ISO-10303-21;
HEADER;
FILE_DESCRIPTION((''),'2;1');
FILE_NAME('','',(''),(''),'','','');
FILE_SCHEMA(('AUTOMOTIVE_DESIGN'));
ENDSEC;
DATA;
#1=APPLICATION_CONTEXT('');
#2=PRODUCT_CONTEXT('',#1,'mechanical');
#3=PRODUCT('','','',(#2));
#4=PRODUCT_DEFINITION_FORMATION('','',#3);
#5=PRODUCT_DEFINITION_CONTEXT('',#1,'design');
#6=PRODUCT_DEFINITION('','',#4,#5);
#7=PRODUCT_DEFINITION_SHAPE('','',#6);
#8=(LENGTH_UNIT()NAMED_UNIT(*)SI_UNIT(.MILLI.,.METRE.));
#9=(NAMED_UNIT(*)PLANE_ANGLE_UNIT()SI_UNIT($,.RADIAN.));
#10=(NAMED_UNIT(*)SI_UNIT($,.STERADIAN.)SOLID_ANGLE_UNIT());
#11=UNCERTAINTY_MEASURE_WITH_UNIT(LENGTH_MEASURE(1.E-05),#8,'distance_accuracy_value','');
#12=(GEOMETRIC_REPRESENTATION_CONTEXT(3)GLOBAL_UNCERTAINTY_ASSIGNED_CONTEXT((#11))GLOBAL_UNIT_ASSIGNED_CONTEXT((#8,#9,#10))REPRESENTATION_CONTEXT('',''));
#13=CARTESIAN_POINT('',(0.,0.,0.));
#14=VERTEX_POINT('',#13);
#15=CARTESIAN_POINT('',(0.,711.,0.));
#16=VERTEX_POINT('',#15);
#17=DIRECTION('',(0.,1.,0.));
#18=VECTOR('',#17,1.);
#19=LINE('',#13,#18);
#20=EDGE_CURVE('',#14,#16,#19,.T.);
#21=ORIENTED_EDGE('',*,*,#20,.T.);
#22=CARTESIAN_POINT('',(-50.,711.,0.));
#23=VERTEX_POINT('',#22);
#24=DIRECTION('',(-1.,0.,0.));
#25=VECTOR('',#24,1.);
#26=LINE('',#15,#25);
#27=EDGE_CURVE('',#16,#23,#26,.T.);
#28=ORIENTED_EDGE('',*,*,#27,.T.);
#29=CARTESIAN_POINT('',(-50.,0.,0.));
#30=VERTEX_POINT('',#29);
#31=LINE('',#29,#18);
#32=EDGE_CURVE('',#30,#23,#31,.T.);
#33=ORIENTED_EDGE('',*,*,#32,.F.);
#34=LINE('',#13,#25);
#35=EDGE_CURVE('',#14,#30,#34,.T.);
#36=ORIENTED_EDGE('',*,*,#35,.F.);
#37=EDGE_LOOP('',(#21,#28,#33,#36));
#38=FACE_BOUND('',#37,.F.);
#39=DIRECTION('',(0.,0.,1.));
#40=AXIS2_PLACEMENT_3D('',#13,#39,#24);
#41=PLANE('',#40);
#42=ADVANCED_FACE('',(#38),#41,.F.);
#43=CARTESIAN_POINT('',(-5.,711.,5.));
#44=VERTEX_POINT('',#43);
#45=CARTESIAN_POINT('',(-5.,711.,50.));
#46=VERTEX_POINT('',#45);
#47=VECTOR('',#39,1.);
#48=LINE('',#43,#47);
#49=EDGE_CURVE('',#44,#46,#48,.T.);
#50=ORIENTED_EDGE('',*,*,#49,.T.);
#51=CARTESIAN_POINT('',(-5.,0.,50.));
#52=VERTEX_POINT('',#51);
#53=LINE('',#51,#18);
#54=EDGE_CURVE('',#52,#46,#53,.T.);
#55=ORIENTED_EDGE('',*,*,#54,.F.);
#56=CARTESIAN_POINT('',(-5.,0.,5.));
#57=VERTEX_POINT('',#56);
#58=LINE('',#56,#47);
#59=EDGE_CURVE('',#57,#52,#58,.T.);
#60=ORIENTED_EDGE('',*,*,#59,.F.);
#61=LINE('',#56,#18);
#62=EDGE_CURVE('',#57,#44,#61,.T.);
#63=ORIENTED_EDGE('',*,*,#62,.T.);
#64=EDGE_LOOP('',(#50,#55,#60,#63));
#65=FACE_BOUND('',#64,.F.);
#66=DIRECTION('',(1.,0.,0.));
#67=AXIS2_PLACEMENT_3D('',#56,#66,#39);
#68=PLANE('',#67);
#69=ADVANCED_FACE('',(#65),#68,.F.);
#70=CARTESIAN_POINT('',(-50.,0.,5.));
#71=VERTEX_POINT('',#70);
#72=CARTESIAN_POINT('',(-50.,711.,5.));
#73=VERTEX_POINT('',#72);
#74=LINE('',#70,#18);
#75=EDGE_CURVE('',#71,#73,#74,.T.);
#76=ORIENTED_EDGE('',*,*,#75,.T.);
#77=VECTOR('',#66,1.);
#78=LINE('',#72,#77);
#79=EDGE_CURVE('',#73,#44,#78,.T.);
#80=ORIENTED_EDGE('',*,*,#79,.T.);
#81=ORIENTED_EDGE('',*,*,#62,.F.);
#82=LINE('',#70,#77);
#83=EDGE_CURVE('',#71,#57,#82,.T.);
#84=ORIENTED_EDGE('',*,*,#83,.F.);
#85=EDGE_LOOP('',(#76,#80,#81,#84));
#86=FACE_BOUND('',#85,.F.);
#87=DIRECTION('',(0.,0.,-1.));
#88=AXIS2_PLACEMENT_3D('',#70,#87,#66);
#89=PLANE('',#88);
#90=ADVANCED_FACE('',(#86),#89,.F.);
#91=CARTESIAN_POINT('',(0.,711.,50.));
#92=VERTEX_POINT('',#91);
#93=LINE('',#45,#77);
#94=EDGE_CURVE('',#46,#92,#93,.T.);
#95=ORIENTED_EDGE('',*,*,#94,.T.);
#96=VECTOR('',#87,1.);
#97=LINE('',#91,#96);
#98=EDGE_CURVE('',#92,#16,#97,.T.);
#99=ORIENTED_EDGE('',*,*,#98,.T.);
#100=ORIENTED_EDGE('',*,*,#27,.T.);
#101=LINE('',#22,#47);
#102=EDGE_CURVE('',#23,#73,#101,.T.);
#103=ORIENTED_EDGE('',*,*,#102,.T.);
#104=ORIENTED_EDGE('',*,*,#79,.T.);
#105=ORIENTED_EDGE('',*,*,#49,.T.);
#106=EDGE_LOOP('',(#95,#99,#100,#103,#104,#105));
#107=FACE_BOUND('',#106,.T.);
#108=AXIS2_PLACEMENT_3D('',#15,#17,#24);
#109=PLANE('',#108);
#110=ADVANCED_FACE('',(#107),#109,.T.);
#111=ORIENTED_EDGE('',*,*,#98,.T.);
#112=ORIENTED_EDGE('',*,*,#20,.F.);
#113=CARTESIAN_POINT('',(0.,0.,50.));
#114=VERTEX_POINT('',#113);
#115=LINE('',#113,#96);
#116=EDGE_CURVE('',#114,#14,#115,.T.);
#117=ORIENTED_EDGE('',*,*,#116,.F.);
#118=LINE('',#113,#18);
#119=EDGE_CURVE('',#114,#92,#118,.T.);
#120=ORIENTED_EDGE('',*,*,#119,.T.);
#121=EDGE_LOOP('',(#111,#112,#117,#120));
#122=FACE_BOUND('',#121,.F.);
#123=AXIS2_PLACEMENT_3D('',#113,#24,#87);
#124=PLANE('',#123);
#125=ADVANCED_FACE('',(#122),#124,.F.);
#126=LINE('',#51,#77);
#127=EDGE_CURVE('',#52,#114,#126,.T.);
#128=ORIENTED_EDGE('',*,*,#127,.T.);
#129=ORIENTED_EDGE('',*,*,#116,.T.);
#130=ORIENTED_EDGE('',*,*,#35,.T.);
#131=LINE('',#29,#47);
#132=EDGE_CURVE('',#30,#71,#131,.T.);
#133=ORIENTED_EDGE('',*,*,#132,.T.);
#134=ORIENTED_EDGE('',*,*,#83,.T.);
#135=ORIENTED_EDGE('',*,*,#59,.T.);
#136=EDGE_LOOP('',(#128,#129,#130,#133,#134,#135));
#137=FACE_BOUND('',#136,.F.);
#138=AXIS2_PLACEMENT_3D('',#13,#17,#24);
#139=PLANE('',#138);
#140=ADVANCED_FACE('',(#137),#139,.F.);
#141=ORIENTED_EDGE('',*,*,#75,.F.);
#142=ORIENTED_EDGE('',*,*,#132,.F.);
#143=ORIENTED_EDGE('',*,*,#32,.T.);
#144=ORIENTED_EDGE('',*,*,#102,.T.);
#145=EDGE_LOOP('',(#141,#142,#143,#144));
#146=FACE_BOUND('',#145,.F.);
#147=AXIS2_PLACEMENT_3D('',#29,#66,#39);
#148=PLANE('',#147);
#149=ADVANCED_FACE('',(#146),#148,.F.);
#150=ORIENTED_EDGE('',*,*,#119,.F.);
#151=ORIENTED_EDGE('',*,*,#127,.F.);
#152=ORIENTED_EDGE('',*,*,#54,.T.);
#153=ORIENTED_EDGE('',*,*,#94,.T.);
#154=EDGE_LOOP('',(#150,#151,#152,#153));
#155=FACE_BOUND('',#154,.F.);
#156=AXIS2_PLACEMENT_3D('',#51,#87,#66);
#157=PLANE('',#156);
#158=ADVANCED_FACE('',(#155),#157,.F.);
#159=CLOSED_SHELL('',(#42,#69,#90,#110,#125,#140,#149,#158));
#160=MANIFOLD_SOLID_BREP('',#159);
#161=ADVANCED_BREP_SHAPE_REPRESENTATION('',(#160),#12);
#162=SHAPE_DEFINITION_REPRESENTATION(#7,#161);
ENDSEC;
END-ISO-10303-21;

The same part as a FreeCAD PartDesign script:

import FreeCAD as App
import Part
import Sketcher
Q = App.Units.Quantity


def add_polygon(sketch, points):
    """Adds a closed chain of lines whose ends are joined by coincident constraints."""
    first, n = sketch.GeometryCount, len(points)
    for a, b in zip(points, points[1:] + points[:1]):
        sketch.addGeometry(Part.LineSegment(App.Vector(*a, 0), App.Vector(*b, 0)), False)
    for i in range(n):
        sketch.addConstraint(Sketcher.Constraint("Coincident", first + i, 2, first + (i + 1) % n, 1))

doc = App.newDocument("Part")
params = doc.addObject("Spreadsheet::Sheet", "Params")
for row, (alias, value) in enumerate([
    ("sketch1_width", "5 mm"),
    ("sketch1_width2", "50 mm"),
    ("pad1_length", "711 mm"),
], start=1):
    params.set(f"A{row}", alias)
    params.set(f"B{row}", "=" + value)
    params.setAlias(f"B{row}", alias)

body = doc.addObject("PartDesign::Body", "Body")

sketch1 = body.newObject("Sketcher::SketchObject", "Sketch")
sketch1.AttachmentSupport = (doc.getObject("XZ_Plane"), [""])
sketch1.MapMode = "FlatFace"
add_polygon(sketch1, [(-5, 50), (0, 50), (0, 0), (-50, 0), (-50, 5), (-5, 5)])
sketch1.addConstraint([
    Sketcher.Constraint("Horizontal", 0),
    Sketcher.Constraint("Vertical", 1),
    Sketcher.Constraint("Horizontal", 2),
    Sketcher.Constraint("Vertical", 3),
    Sketcher.Constraint("Horizontal", 4),
    Sketcher.Constraint("Vertical", 5),
    Sketcher.Constraint("Coincident", 1, 2, -1, 1),
    Sketcher.Constraint("Equal", 2, 1),
    Sketcher.Constraint("Equal", 0, 3),
    Sketcher.Constraint("DistanceX", 0, 1, 0, 2, Q("5 mm")),
    Sketcher.Constraint("DistanceX", 2, 2, 2, 1, Q("50 mm")),
])
sketch1.setExpression("Constraints[15]", "Params.sketch1_width")
sketch1.setExpression("Constraints[16]", "Params.sketch1_width2")
pad1 = body.newObject("PartDesign::Pad", "Pad")
pad1.Profile = sketch1
pad1.setExpression("Length", "Params.pad1_length")
pad1.Reversed = True

doc.recompute()
